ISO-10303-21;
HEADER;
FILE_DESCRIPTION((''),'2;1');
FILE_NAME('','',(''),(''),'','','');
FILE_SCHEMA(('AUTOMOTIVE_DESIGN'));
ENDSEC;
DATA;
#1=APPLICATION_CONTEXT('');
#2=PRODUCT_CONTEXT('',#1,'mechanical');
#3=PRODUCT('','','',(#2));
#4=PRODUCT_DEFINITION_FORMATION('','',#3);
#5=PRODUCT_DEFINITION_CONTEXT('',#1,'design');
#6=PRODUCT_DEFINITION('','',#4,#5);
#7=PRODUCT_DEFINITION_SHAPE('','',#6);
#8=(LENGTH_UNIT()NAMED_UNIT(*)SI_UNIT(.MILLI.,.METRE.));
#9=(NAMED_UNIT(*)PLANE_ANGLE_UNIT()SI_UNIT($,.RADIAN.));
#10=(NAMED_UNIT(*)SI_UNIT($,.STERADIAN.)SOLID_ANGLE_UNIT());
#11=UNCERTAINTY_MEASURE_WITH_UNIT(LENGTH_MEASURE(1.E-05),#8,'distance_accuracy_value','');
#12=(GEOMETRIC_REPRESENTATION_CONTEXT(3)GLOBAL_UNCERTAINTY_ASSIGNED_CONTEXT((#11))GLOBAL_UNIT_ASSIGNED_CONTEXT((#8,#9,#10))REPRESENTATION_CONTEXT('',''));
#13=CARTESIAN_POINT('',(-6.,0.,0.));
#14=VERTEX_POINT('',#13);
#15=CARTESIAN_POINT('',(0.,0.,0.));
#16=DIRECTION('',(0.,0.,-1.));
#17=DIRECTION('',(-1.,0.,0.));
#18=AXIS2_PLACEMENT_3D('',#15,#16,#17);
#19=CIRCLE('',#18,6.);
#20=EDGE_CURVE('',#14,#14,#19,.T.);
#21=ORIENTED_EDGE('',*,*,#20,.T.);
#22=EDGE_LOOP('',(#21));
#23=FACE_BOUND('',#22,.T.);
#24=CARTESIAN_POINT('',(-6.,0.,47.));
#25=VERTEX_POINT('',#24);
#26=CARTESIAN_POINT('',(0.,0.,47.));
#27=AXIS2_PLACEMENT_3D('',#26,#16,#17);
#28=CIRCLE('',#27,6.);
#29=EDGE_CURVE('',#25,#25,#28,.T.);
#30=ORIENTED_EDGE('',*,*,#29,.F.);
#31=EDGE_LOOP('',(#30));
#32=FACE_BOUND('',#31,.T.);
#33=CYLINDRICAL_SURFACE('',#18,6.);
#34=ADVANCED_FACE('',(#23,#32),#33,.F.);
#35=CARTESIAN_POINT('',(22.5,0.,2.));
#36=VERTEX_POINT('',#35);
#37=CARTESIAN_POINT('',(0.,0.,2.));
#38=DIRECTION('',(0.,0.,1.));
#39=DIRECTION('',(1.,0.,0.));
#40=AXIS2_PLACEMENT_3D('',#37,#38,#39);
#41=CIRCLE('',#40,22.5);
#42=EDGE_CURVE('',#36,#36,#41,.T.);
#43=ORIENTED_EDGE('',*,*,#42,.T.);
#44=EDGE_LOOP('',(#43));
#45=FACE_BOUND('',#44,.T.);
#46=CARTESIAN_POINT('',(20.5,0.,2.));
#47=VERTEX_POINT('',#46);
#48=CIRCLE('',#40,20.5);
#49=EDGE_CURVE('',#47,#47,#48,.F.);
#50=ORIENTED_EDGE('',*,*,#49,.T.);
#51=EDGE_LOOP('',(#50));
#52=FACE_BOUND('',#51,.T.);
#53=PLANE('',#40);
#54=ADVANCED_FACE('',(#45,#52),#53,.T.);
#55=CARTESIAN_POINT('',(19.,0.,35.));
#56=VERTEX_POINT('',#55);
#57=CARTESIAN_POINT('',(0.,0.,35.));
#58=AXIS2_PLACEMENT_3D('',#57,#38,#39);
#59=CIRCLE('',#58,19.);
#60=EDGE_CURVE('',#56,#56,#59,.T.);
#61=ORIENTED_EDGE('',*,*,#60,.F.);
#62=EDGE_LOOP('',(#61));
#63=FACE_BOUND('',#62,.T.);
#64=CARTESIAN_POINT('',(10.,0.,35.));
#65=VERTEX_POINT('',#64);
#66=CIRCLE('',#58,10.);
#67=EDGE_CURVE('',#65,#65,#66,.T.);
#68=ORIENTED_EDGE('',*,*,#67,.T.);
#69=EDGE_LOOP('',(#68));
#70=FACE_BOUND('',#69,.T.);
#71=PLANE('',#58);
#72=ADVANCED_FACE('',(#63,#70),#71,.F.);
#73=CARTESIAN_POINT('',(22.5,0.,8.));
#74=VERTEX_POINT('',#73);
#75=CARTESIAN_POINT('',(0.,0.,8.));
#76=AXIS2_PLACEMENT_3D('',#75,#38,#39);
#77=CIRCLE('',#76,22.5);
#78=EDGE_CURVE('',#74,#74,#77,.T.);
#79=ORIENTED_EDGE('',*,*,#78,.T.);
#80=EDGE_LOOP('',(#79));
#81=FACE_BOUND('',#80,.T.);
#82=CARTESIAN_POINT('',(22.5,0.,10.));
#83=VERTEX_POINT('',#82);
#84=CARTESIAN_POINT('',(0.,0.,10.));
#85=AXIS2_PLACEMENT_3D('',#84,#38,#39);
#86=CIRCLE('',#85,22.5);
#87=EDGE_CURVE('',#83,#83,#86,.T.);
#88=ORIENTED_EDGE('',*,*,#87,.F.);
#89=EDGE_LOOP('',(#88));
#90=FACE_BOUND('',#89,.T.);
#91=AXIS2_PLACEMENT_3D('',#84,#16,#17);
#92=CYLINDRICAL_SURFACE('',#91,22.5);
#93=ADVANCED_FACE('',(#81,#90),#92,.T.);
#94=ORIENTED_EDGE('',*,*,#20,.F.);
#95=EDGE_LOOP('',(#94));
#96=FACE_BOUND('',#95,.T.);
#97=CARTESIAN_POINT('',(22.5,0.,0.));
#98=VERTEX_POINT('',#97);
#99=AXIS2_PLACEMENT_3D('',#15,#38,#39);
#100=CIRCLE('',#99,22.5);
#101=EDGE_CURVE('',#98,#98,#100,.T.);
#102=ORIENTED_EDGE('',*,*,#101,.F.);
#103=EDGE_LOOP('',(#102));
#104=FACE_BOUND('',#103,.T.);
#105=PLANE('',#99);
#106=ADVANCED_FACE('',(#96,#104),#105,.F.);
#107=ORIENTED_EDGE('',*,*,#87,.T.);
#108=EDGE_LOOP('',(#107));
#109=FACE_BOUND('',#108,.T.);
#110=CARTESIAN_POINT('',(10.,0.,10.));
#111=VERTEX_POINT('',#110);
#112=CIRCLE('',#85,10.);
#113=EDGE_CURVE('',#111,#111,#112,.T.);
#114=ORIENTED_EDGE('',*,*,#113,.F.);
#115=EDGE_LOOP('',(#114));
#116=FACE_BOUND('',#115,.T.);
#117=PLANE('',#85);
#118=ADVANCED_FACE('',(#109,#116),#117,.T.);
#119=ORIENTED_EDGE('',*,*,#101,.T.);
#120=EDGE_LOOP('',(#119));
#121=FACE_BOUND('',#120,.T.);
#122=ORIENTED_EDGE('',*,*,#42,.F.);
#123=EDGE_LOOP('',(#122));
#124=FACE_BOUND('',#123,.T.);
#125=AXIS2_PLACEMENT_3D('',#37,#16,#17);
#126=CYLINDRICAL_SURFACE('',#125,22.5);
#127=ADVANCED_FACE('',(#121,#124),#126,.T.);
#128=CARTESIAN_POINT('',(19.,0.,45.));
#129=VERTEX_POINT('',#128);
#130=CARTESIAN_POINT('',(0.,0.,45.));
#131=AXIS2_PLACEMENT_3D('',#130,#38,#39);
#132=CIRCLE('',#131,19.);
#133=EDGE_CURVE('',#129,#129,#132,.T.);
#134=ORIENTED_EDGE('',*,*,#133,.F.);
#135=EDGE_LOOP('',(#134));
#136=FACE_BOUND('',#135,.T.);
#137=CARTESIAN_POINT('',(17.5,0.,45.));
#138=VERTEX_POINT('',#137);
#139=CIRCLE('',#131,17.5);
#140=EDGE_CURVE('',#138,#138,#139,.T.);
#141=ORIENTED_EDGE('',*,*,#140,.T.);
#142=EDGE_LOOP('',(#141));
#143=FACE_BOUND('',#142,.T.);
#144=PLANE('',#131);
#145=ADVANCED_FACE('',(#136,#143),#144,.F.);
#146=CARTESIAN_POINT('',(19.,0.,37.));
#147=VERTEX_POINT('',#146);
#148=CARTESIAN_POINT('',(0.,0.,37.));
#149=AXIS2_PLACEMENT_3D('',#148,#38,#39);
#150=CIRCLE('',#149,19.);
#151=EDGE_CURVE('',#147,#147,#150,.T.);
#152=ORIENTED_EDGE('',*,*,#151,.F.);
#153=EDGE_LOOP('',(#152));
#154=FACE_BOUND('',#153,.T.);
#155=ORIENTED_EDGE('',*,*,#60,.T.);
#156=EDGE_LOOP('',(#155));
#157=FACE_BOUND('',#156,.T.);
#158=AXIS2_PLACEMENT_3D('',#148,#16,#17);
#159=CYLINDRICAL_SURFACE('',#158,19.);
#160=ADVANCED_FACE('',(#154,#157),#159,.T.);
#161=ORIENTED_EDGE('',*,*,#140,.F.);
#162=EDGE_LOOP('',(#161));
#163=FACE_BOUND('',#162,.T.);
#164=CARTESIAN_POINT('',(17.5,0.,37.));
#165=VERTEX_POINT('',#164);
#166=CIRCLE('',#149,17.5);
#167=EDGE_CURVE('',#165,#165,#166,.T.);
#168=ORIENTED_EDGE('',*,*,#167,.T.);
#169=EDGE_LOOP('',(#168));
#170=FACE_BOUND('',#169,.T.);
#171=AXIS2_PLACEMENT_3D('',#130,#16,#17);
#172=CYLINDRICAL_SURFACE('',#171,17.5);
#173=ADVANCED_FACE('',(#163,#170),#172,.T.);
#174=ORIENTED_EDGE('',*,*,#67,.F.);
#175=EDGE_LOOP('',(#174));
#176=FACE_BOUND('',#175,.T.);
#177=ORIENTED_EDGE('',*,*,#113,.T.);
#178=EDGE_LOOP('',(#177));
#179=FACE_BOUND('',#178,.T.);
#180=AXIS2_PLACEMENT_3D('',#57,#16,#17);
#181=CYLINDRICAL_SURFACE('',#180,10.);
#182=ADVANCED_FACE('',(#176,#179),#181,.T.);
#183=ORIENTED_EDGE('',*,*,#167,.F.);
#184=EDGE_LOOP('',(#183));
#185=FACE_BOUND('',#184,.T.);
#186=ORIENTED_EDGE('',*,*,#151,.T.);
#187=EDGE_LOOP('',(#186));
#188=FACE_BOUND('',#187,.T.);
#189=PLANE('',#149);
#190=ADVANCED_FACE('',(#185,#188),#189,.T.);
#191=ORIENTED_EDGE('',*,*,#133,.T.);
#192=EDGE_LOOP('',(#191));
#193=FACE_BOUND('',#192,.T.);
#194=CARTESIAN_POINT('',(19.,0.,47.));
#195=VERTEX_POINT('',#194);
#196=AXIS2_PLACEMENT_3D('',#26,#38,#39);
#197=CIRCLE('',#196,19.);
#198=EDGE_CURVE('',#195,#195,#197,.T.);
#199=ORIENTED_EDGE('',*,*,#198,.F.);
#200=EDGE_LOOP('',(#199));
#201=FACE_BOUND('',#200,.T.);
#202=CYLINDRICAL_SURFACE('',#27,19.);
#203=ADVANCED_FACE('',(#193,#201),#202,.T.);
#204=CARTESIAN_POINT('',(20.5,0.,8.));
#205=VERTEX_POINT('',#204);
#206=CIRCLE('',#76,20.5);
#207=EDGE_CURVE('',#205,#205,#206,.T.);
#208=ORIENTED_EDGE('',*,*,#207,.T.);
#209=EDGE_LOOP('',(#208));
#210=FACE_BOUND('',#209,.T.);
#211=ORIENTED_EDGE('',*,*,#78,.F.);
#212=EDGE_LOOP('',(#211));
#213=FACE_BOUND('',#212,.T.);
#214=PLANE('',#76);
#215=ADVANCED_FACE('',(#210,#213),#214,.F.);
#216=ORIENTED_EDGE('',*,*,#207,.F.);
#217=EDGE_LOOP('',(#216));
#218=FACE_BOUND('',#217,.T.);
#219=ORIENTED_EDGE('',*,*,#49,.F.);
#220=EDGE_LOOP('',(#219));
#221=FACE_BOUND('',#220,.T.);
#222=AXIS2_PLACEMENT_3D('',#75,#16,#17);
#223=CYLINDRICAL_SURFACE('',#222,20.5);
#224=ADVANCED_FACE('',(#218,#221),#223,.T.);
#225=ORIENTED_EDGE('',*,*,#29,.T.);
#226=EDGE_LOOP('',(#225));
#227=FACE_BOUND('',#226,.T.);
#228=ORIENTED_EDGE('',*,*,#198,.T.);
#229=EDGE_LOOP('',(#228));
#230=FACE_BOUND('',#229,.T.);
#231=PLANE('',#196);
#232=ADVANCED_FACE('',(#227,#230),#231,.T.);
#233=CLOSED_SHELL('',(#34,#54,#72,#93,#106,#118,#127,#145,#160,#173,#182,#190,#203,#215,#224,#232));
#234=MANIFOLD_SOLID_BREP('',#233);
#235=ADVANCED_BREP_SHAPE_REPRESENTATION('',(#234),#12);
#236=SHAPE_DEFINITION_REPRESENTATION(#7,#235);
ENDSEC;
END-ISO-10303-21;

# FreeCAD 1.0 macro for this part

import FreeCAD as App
import Part
import Sketcher
from FreeCAD import Vector
Q = App.Units.Quantity

doc = App.newDocument("Part")
body = doc.addObject("PartDesign::Body", "Body")

sketch1 = body.newObject("Sketcher::SketchObject", "Sketch")
sketch1.AttachmentSupport = (doc.getObject("XY_Plane"), [""])
sketch1.MapMode = "FlatFace"
sketch1.addGeometry(Part.Circle(Vector(0, 0, 0), Vector(0, 0, 1), 22.5), False)
sketch1.addConstraint(Sketcher.Constraint("Coincident", 0, 3, -1, 1))
sketch1.addConstraint(Sketcher.Constraint("Diameter", 0, Q("45 mm")))
pad1 = body.newObject("PartDesign::Pad", "Pad")
pad1.Profile = sketch1
pad1.Length = 2

sketch2 = body.newObject("Sketcher::SketchObject", "Sketch001")
sketch2.AttachmentSupport = (doc.getObject("XY_Plane"), [""])
sketch2.MapMode = "FlatFace"
sketch2.addGeometry(Part.Circle(Vector(0, 0, 0), Vector(0, 0, 1), 20.5), False)
sketch2.addConstraint(Sketcher.Constraint("Coincident", 0, 3, -1, 1))
sketch2.addConstraint(Sketcher.Constraint("Diameter", 0, Q("41 mm")))
pad2 = body.newObject("PartDesign::Pad", "Pad001")
pad2.Profile = sketch2
pad2.Length = 8

sketch3 = body.newObject("Sketcher::SketchObject", "Sketch002")
sketch3.AttachmentSupport = (doc.getObject("XY_Plane"), [""])
sketch3.MapMode = "FlatFace"
sketch3.AttachmentOffset = App.Placement(Vector(0, 0, 8), App.Rotation())
sketch3.addGeometry(Part.Circle(Vector(0, 0, 0), Vector(0, 0, 1), 22.5), False)
sketch3.addConstraint(Sketcher.Constraint("Coincident", 0, 3, -1, 1))
sketch3.addConstraint(Sketcher.Constraint("Diameter", 0, Q("45 mm")))
pad3 = body.newObject("PartDesign::Pad", "Pad002")
pad3.Profile = sketch3
pad3.Length = 2

sketch4 = body.newObject("Sketcher::SketchObject", "Sketch003")
sketch4.AttachmentSupport = (doc.getObject("XY_Plane"), [""])
sketch4.MapMode = "FlatFace"
sketch4.addGeometry(Part.Circle(Vector(0, 0, 0), Vector(0, 0, 1), 2.5), False)
sketch4.addConstraint(Sketcher.Constraint("Coincident", 0, 3, -1, 1))
sketch4.addConstraint(Sketcher.Constraint("Diameter", 0, Q("5 mm")))
pocket1 = body.newObject("PartDesign::Pocket", "Pocket")
pocket1.Profile = sketch4
pocket1.Type = "ThroughAll"
pocket1.Midplane = True

sketch5 = body.newObject("Sketcher::SketchObject", "Sketch004")
sketch5.AttachmentSupport = (doc.getObject("XY_Plane"), [""])
sketch5.MapMode = "FlatFace"
sketch5.AttachmentOffset = App.Placement(Vector(0, 0, 10), App.Rotation())
sketch5.addGeometry(Part.Circle(Vector(0, 0, 0), Vector(0, 0, 1), 10), False)
sketch5.addConstraint(Sketcher.Constraint("Coincident", 0, 3, -1, 1))
sketch5.addConstraint(Sketcher.Constraint("Diameter", 0, Q("20 mm")))
pad4 = body.newObject("PartDesign::Pad", "Pad003")
pad4.Profile = sketch5
pad4.Length = 25

sketch6 = body.newObject("Sketcher::SketchObject", "Sketch005")
sketch6.AttachmentSupport = (doc.getObject("XY_Plane"), [""])
sketch6.MapMode = "FlatFace"
sketch6.AttachmentOffset = App.Placement(Vector(0, 0, 35), App.Rotation())
sketch6.addGeometry(Part.Circle(Vector(0, 0, 0), Vector(0, 0, 1), 19), False)
sketch6.addConstraint(Sketcher.Constraint("Coincident", 0, 3, -1, 1))
sketch6.addConstraint(Sketcher.Constraint("Diameter", 0, Q("38 mm")))
pad5 = body.newObject("PartDesign::Pad", "Pad004")
pad5.Profile = sketch6
pad5.Length = 2

sketch7 = body.newObject("Sketcher::SketchObject", "Sketch006")
sketch7.AttachmentSupport = (doc.getObject("XY_Plane"), [""])
sketch7.MapMode = "FlatFace"
sketch7.AttachmentOffset = App.Placement(Vector(0, 0, 37), App.Rotation())
sketch7.addGeometry(Part.Circle(Vector(0, 0, 0), Vector(0, 0, 1), 17.5), False)
sketch7.addConstraint(Sketcher.Constraint("Coincident", 0, 3, -1, 1))
sketch7.addConstraint(Sketcher.Constraint("Diameter", 0, Q("35 mm")))
pad6 = body.newObject("PartDesign::Pad", "Pad005")
pad6.Profile = sketch7
pad6.Length = 8

sketch8 = body.newObject("Sketcher::SketchObject", "Sketch007")
sketch8.AttachmentSupport = (doc.getObject("XY_Plane"), [""])
sketch8.MapMode = "FlatFace"
sketch8.AttachmentOffset = App.Placement(Vector(0, 0, 45), App.Rotation())
sketch8.addGeometry(Part.Circle(Vector(0, 0, 0), Vector(0, 0, 1), 19), False)
sketch8.addConstraint(Sketcher.Constraint("Coincident", 0, 3, -1, 1))
sketch8.addConstraint(Sketcher.Constraint("Diameter", 0, Q("38 mm")))
pad7 = body.newObject("PartDesign::Pad", "Pad006")
pad7.Profile = sketch8
pad7.Length = 2

sketch9 = body.newObject("Sketcher::SketchObject", "Sketch008")
sketch9.AttachmentSupport = (doc.getObject("XY_Plane"), [""])
sketch9.MapMode = "FlatFace"
sketch9.addGeometry(Part.Circle(Vector(0, 0, 0), Vector(0, 0, 1), 6), False)
sketch9.addConstraint(Sketcher.Constraint("Coincident", 0, 3, -1, 1))
sketch9.addConstraint(Sketcher.Constraint("Diameter", 0, Q("12 mm")))
doc.recompute()
hole = body.newObject("PartDesign::Hole", "Hole")
hole.Profile = sketch9
hole.ThreadType = "None"
hole.Diameter = 12
hole.DepthType = "ThroughAll"
hole.Reversed = True

doc.recompute()
